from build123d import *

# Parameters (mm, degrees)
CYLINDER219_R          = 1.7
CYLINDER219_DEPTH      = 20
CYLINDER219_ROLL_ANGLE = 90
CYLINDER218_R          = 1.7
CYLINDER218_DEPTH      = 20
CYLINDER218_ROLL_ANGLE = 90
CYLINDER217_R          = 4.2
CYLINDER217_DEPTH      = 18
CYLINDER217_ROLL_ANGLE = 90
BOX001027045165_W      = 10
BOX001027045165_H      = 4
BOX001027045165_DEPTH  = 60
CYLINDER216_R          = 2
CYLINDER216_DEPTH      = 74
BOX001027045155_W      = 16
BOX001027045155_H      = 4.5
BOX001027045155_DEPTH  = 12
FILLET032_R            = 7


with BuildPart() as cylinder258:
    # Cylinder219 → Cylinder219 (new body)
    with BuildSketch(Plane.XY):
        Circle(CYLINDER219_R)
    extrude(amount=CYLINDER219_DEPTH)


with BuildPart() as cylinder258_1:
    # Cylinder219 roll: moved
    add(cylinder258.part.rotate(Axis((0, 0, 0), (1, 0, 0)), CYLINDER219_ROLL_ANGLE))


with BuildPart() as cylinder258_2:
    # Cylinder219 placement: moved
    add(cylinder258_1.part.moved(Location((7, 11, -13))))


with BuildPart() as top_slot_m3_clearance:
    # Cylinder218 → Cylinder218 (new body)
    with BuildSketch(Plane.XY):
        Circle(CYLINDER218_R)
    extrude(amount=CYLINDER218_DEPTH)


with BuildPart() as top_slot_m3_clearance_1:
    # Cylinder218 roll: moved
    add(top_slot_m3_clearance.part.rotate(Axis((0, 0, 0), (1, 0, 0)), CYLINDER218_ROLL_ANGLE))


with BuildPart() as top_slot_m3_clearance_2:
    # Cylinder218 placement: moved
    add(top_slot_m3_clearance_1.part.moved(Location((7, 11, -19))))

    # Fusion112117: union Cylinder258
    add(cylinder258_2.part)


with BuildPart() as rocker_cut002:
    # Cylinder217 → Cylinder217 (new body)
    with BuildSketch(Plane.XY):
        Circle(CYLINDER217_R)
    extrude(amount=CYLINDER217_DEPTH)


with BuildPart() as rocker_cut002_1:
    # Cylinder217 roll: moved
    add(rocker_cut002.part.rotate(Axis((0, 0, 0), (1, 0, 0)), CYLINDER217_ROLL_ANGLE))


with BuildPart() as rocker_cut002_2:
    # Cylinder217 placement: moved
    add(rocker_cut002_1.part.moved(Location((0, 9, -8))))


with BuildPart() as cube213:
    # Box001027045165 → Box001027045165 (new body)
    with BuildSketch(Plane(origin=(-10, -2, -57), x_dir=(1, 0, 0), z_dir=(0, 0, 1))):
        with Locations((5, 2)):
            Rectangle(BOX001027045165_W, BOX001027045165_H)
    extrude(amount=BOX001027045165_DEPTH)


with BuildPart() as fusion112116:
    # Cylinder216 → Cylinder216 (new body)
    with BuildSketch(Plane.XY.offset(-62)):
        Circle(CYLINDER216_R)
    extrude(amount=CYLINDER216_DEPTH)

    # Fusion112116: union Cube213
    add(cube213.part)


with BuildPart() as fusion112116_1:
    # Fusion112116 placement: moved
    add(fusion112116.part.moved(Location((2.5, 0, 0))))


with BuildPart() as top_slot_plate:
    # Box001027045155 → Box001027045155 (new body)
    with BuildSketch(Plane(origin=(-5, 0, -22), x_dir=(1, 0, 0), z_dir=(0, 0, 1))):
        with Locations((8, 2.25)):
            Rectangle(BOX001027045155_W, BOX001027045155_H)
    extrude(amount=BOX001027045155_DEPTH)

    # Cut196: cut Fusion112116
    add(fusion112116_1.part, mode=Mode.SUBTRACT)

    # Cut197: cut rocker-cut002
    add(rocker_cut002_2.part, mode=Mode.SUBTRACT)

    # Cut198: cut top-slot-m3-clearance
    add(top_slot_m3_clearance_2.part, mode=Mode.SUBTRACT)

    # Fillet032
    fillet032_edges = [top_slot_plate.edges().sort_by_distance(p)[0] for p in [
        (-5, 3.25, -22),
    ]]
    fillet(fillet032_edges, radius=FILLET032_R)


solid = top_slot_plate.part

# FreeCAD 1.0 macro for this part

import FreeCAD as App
import Part
import Sketcher
from FreeCAD import Vector


def edges_at(feature, points):
    """Names of the edges that pass closest to the given points."""
    edges = feature.Shape.Edges
    near = lambda p: min(range(len(edges)), key=lambda i: edges[i].distToShape(Part.Vertex(*p))[0])
    return sorted({f"Edge{near(p) + 1}" for p in points})


def add_polygon(sketch, points):
    """Adds a closed chain of lines whose ends are joined by coincident constraints."""
    first, n = sketch.GeometryCount, len(points)
    for a, b in zip(points, points[1:] + points[:1]):
        sketch.addGeometry(Part.LineSegment(App.Vector(*a, 0), App.Vector(*b, 0)), False)
    for i in range(n):
        sketch.addConstraint(Sketcher.Constraint("Coincident", first + i, 2, first + (i + 1) % n, 1))

doc = App.newDocument("Part")
body = doc.addObject("PartDesign::Body", "Body")

# Sketch on XY plane
sketch1 = doc.addObject("Sketcher::SketchObject", "Sketch")
body.addObject(sketch1)
sketch1.AttachmentSupport = (doc.XY_Plane, [""])
sketch1.MapMode = "FlatFace"
sketch1.addGeometry(Part.Circle(Vector(0, 0, 0), Vector(0, 0, 1), 1.7), False)
sketch1.addConstraint(Sketcher.Constraint("Coincident", 0, 3, -1, 1))
sketch1.addConstraint(Sketcher.Constraint("Diameter", 0, 3.4))
pad1 = doc.addObject("PartDesign::Pad", "Pad")
body.addObject(pad1)
pad1.Profile = sketch1
pad1.Length = 20
body2 = doc.addObject("PartDesign::Body", "Body001")
doc.recompute()

body.Placement = App.Placement(Vector(0, 0, 0), App.Rotation(Vector(1, 0, 0), 90))
boolean = doc.addObject("PartDesign::Boolean", "Boolean")
body2.addObject(boolean)
boolean.Type = "Fuse"
boolean.addObjects([body])
body3 = doc.addObject("PartDesign::Body", "Body002")
doc.recompute()

body2.Placement = App.Placement(Vector(7, 11, -13), App.Rotation(Vector(0, 0, 1), 0))
boolean2 = doc.addObject("PartDesign::Boolean", "Boolean001")
body3.addObject(boolean2)
boolean2.Type = "Fuse"
boolean2.addObjects([body2])
body4 = doc.addObject("PartDesign::Body", "Body003")

# Sketch on XY plane
sketch2 = doc.addObject("Sketcher::SketchObject", "Sketch001")
body4.addObject(sketch2)
sketch2.AttachmentSupport = (doc.getObject("XY_Plane003"), [""])
sketch2.MapMode = "FlatFace"
sketch2.addGeometry(Part.Circle(Vector(0, 0, 0), Vector(0, 0, 1), 1.7), False)
sketch2.addConstraint(Sketcher.Constraint("Coincident", 0, 3, -1, 1))
sketch2.addConstraint(Sketcher.Constraint("Diameter", 0, 3.4))
pad2 = doc.addObject("PartDesign::Pad", "Pad001")
body4.addObject(pad2)
pad2.Profile = sketch2
pad2.Length = 20
body5 = doc.addObject("PartDesign::Body", "Body004")
doc.recompute()

body4.Placement = App.Placement(Vector(0, 0, 0), App.Rotation(Vector(1, 0, 0), 90))
boolean3 = doc.addObject("PartDesign::Boolean", "Boolean002")
body5.addObject(boolean3)
boolean3.Type = "Fuse"
boolean3.addObjects([body4])
body6 = doc.addObject("PartDesign::Body", "Body005")
body6.AllowCompound = True
doc.recompute()

body5.Placement = App.Placement(Vector(7, 11, -19), App.Rotation(Vector(0, 0, 1), 0))
boolean4 = doc.addObject("PartDesign::Boolean", "Boolean003")
body6.addObject(boolean4)
boolean4.Type = "Fuse"
boolean4.addObjects([body5])
doc.recompute()

boolean5 = doc.addObject("PartDesign::Boolean", "Boolean004")
body6.addObject(boolean5)
boolean5.Type = "Fuse"
boolean5.addObjects([body3])
body7 = doc.addObject("PartDesign::Body", "Body006")

# Sketch on XY plane
sketch3 = doc.addObject("Sketcher::SketchObject", "Sketch002")
body7.addObject(sketch3)
sketch3.AttachmentSupport = (doc.getObject("XY_Plane006"), [""])
sketch3.MapMode = "FlatFace"
sketch3.addGeometry(Part.Circle(Vector(0, 0, 0), Vector(0, 0, 1), 4.2), False)
sketch3.addConstraint(Sketcher.Constraint("Coincident", 0, 3, -1, 1))
sketch3.addConstraint(Sketcher.Constraint("Diameter", 0, 8.4))
pad3 = doc.addObject("PartDesign::Pad", "Pad002")
body7.addObject(pad3)
pad3.Profile = sketch3
pad3.Length = 18
body8 = doc.addObject("PartDesign::Body", "Body007")
doc.recompute()

body7.Placement = App.Placement(Vector(0, 0, 0), App.Rotation(Vector(1, 0, 0), 90))
boolean6 = doc.addObject("PartDesign::Boolean", "Boolean005")
body8.addObject(boolean6)
boolean6.Type = "Fuse"
boolean6.addObjects([body7])
body9 = doc.addObject("PartDesign::Body", "Body008")
doc.recompute()

body8.Placement = App.Placement(Vector(0, 9, -8), App.Rotation(Vector(0, 0, 1), 0))
boolean7 = doc.addObject("PartDesign::Boolean", "Boolean006")
body9.addObject(boolean7)
boolean7.Type = "Fuse"
boolean7.addObjects([body8])
body10 = doc.addObject("PartDesign::Body", "Body009")

# Sketch on XY plane
sketch4 = doc.addObject("Sketcher::SketchObject", "Sketch003")
body10.addObject(sketch4)
sketch4.AttachmentSupport = (doc.getObject("XY_Plane009"), [""])
sketch4.MapMode = "FlatFace"
sketch4.AttachmentOffset = App.Placement(Vector(0, 0, -57), App.Rotation())
add_polygon(sketch4, [(-10, 2), (-10, -2), (0, -2), (0, 2)])  # lines 0-3
sketch4.addConstraint(Sketcher.Constraint("Vertical", 0))
sketch4.addConstraint(Sketcher.Constraint("Horizontal", 1))
sketch4.addConstraint(Sketcher.Constraint("Vertical", 2))
sketch4.addConstraint(Sketcher.Constraint("Horizontal", 3))
sketch4.addConstraint(Sketcher.Constraint("Symmetric", 1, 2, 2, 2, -1, 1))
sketch4.addConstraint(Sketcher.Constraint("DistanceX", 1, 1, 1, 2, 10.0))
sketch4.addConstraint(Sketcher.Constraint("DistanceY", 0, 2, 0, 1, 4.0))
pad4 = doc.addObject("PartDesign::Pad", "Pad003")
body10.addObject(pad4)
pad4.Profile = sketch4
pad4.Length = 60
body11 = doc.addObject("PartDesign::Body", "Body010")

# Sketch on XY plane
sketch5 = doc.addObject("Sketcher::SketchObject", "Sketch004")
body11.addObject(sketch5)
sketch5.AttachmentSupport = (doc.getObject("XY_Plane010"), [""])
sketch5.MapMode = "FlatFace"
sketch5.AttachmentOffset = App.Placement(Vector(0, 0, -62), App.Rotation())
sketch5.addGeometry(Part.Circle(Vector(0, 0, 0), Vector(0, 0, 1), 2), False)
sketch5.addConstraint(Sketcher.Constraint("Coincident", 0, 3, -1, 1))
sketch5.addConstraint(Sketcher.Constraint("Diameter", 0, 4.0))
pad5 = doc.addObject("PartDesign::Pad", "Pad004")
body11.addObject(pad5)
pad5.Profile = sketch5
pad5.Length = 74
doc.recompute()

boolean8 = doc.addObject("PartDesign::Boolean", "Boolean007")
body11.addObject(boolean8)
boolean8.Type = "Fuse"
boolean8.addObjects([body10])
body12 = doc.addObject("PartDesign::Body", "Body011")
doc.recompute()

body11.Placement = App.Placement(Vector(2.5, 0, 0), App.Rotation(Vector(0, 0, 1), 0))
boolean9 = doc.addObject("PartDesign::Boolean", "Boolean008")
body12.addObject(boolean9)
boolean9.Type = "Fuse"
boolean9.addObjects([body11])
body13 = doc.addObject("PartDesign::Body", "Body012")

# Sketch on XY plane
sketch6 = doc.addObject("Sketcher::SketchObject", "Sketch005")
body13.addObject(sketch6)
sketch6.AttachmentSupport = (doc.getObject("XY_Plane012"), [""])
sketch6.MapMode = "FlatFace"
sketch6.AttachmentOffset = App.Placement(Vector(0, 0, -22), App.Rotation())
add_polygon(sketch6, [(-5, 4.5), (-5, 0), (11, 0), (11, 4.5)])  # lines 0-3
sketch6.addConstraint(Sketcher.Constraint("Vertical", 0))
sketch6.addConstraint(Sketcher.Constraint("Horizontal", 1))
sketch6.addConstraint(Sketcher.Constraint("Vertical", 2))
sketch6.addConstraint(Sketcher.Constraint("Horizontal", 3))
sketch6.addConstraint(Sketcher.Constraint("PointOnObject", 0, 2, -1))
sketch6.addConstraint(Sketcher.Constraint("DistanceX", 1, 1, 1, 2, 16.0))
sketch6.addConstraint(Sketcher.Constraint("DistanceY", 0, 2, 0, 1, 4.5))
sketch6.addConstraint(Sketcher.Constraint("DistanceX", 0, 2, -1, 1, 5.0))
pad6 = doc.addObject("PartDesign::Pad", "Pad005")
body13.addObject(pad6)
pad6.Profile = sketch6
pad6.Length = 12
doc.recompute()

boolean10 = doc.addObject("PartDesign::Boolean", "Boolean009")
body13.addObject(boolean10)
boolean10.Type = "Cut"
boolean10.addObjects([body12])
doc.recompute()

boolean11 = doc.addObject("PartDesign::Boolean", "Boolean010")
body13.addObject(boolean11)
boolean11.Type = "Cut"
boolean11.addObjects([body9])
doc.recompute()

boolean12 = doc.addObject("PartDesign::Boolean", "Boolean011")
body13.addObject(boolean12)
boolean12.Type = "Cut"
boolean12.addObjects([body6])
doc.recompute()

fillet = doc.addObject("PartDesign::Fillet", "Fillet")
body13.addObject(fillet)
fillet.Base = (boolean12, edges_at(boolean12, [(-5, 3.25, -22)]))
fillet.Radius = 7

doc.recompute()
